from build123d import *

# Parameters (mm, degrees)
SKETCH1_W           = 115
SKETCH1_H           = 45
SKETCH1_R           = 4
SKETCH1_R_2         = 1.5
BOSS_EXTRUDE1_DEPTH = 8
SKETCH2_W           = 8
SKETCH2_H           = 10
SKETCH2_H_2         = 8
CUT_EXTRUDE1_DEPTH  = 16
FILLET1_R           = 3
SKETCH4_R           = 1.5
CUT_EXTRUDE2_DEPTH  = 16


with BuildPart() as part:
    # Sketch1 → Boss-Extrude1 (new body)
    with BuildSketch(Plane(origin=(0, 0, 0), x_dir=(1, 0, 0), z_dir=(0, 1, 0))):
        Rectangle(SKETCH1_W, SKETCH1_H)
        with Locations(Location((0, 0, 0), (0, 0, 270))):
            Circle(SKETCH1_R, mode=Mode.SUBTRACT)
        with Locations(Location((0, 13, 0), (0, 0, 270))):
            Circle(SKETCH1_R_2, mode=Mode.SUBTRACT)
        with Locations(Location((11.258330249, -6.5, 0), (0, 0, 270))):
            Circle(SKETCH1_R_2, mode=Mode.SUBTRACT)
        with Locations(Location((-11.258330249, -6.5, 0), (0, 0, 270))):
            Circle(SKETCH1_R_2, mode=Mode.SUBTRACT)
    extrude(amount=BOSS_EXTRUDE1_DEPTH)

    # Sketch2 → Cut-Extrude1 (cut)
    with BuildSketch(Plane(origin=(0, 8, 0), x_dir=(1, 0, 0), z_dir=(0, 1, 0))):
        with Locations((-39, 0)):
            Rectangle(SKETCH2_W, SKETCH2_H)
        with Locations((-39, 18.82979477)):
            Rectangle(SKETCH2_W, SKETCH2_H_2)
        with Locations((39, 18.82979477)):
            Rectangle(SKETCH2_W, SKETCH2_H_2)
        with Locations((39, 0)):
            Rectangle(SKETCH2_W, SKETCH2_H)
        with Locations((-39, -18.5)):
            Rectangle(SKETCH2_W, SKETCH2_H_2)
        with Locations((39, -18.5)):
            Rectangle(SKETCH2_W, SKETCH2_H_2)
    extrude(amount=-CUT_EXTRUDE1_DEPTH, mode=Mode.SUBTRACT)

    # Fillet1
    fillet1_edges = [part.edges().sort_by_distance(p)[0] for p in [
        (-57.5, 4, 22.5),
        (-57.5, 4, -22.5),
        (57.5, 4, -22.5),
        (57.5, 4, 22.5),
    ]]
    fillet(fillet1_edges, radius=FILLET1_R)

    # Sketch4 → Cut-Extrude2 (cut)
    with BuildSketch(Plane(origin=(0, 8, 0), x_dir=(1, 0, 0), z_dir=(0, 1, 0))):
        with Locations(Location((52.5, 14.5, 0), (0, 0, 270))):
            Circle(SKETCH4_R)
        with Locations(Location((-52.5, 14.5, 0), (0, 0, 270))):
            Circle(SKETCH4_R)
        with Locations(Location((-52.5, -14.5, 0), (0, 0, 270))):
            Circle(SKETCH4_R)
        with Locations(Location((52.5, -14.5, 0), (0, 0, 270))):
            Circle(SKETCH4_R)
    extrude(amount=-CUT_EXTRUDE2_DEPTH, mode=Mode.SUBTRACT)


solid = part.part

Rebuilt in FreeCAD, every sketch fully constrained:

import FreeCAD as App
import Part
import Sketcher
Q = App.Units.Quantity


def edges_at(feature, points):
    """Names of the edges that pass closest to the given points."""
    edges = feature.Shape.Edges
    near = lambda p: min(range(len(edges)), key=lambda i: edges[i].distToShape(Part.Vertex(*p))[0])
    return sorted({f"Edge{near(p) + 1}" for p in points})


def add_polygon(sketch, points):
    """Adds a closed chain of lines whose ends are joined by coincident constraints."""
    first, n = sketch.GeometryCount, len(points)
    for a, b in zip(points, points[1:] + points[:1]):
        sketch.addGeometry(Part.LineSegment(App.Vector(*a, 0), App.Vector(*b, 0)), False)
    for i in range(n):
        sketch.addConstraint(Sketcher.Constraint("Coincident", first + i, 2, first + (i + 1) % n, 1))

doc = App.newDocument("Part")
body = doc.addObject("PartDesign::Body", "Body")

# Sketch on XZ plane
sketch1 = body.newObject("Sketcher::SketchObject", "Sketch")
sketch1.AttachmentSupport = (doc.getObject("XZ_Plane"), [""])
sketch1.MapMode = "FlatFace"
add_polygon(sketch1, [(-57.5, -22.5), (-57.5, 22.5), (57.5, 22.5), (57.5, -22.5)])  # lines 0-3
sketch1.addGeometry(Part.Circle(App.Vector(-11.25833, 6.5, 0), App.Vector(0, 0, 1), 1.5), False)  # 4
sketch1.addGeometry(Part.Circle(App.Vector(11.25833, 6.5, 0), App.Vector(0, 0, 1), 1.5), False)  # 5
sketch1.addGeometry(Part.Circle(App.Vector(0, 0, 0), App.Vector(0, 0, 1), 4), False)  # 6
sketch1.addGeometry(Part.Circle(App.Vector(0, -13, 0), App.Vector(0, 0, 1), 1.5), False)  # 7
sketch1.addConstraint(Sketcher.Constraint("Vertical", 0))
sketch1.addConstraint(Sketcher.Constraint("Horizontal", 1))
sketch1.addConstraint(Sketcher.Constraint("Vertical", 2))
sketch1.addConstraint(Sketcher.Constraint("Horizontal", 3))
sketch1.addConstraint(Sketcher.Constraint("Coincident", 6, 3, -1, 1))
sketch1.addConstraint(Sketcher.Constraint("Equal", 4, 5))
sketch1.addConstraint(Sketcher.Constraint("Equal", 5, 7))
sketch1.addConstraint(Sketcher.Constraint("Symmetric", 0, 2, 2, 2, -1, 1))
sketch1.addConstraint(Sketcher.Constraint("Symmetric", 4, 3, 5, 3, -2))
sketch1.addConstraint(Sketcher.Constraint("PointOnObject", 7, 3, -2))
sketch1.addConstraint(Sketcher.Constraint("Diameter", 4, Q("3 mm")))
sketch1.addConstraint(Sketcher.Constraint("Diameter", 6, Q("8 mm")))
sketch1.addConstraint(Sketcher.Constraint("DistanceX", 1, 1, 1, 2, Q("115 mm")))
sketch1.addConstraint(Sketcher.Constraint("DistanceY", 0, 1, 0, 2, Q("45 mm")))
sketch1.addConstraint(Sketcher.Constraint("DistanceY", 7, 3, -1, 1, Q("13 mm")))
sketch1.addConstraint(Sketcher.Constraint("DistanceY", 4, 3, 0, 2, Q("16 mm")))
sketch1.addConstraint(Sketcher.Constraint("DistanceX", 4, 3, -1, 1, Q("11.25833 mm")))
pad1 = body.newObject("PartDesign::Pad", "Pad")
pad1.Profile = sketch1
pad1.Length = 8
pad1.Reversed = True

# Sketch on XZ plane
sketch2 = body.newObject("Sketcher::SketchObject", "Sketch001")
sketch2.AttachmentSupport = (doc.getObject("XZ_Plane"), [""])
sketch2.MapMode = "FlatFace"
sketch2.AttachmentOffset = App.Placement(App.Vector(0, 0, -8), App.Rotation())
add_polygon(sketch2, [(-43, -5), (-43, 5), (-35, 5), (-35, -5)])  # lines 0-3
add_polygon(sketch2, [(-43, -22.829795), (-43, -14.829795), (-35, -14.829795), (-35, -22.829795)])  # lines 4-7
add_polygon(sketch2, [(35, -22.829795), (35, -14.829795), (43, -14.829795), (43, -22.829795)])  # lines 8-11
add_polygon(sketch2, [(35, -5), (35, 5), (43, 5), (43, -5)])  # lines 12-15
add_polygon(sketch2, [(-43, 14.5), (-43, 22.5), (-35, 22.5), (-35, 14.5)])  # lines 16-19
add_polygon(sketch2, [(35, 14.5), (35, 22.5), (43, 22.5), (43, 14.5)])  # lines 20-23
sketch2.addConstraint(Sketcher.Constraint("Vertical", 0))
sketch2.addConstraint(Sketcher.Constraint("Horizontal", 1))
sketch2.addConstraint(Sketcher.Constraint("Vertical", 2))
sketch2.addConstraint(Sketcher.Constraint("Horizontal", 3))
sketch2.addConstraint(Sketcher.Constraint("Vertical", 4))
sketch2.addConstraint(Sketcher.Constraint("Horizontal", 5))
sketch2.addConstraint(Sketcher.Constraint("Vertical", 6))
sketch2.addConstraint(Sketcher.Constraint("Horizontal", 7))
sketch2.addConstraint(Sketcher.Constraint("Vertical", 8))
sketch2.addConstraint(Sketcher.Constraint("Horizontal", 9))
sketch2.addConstraint(Sketcher.Constraint("Vertical", 10))
sketch2.addConstraint(Sketcher.Constraint("Horizontal", 11))
sketch2.addConstraint(Sketcher.Constraint("Vertical", 12))
sketch2.addConstraint(Sketcher.Constraint("Horizontal", 13))
sketch2.addConstraint(Sketcher.Constraint("Vertical", 14))
sketch2.addConstraint(Sketcher.Constraint("Horizontal", 15))
sketch2.addConstraint(Sketcher.Constraint("Vertical", 16))
sketch2.addConstraint(Sketcher.Constraint("Horizontal", 17))
sketch2.addConstraint(Sketcher.Constraint("Vertical", 18))
sketch2.addConstraint(Sketcher.Constraint("Horizontal", 19))
sketch2.addConstraint(Sketcher.Constraint("Vertical", 20))
sketch2.addConstraint(Sketcher.Constraint("Horizontal", 21))
sketch2.addConstraint(Sketcher.Constraint("Vertical", 22))
sketch2.addConstraint(Sketcher.Constraint("Horizontal", 23))
sketch2.addConstraint(Sketcher.Constraint("Symmetric", 2, 2, 12, 2, -1, 1))
sketch2.addConstraint(Sketcher.Constraint("Symmetric", 0, 2, 14, 2, -1, 1))
sketch2.addConstraint(Sketcher.Constraint("Symmetric", 5, 2, 8, 2, -2))
sketch2.addConstraint(Sketcher.Constraint("Symmetric", 7, 2, 10, 2, -2))
sketch2.addConstraint(Sketcher.Constraint("Symmetric", 17, 2, 20, 2, -2))
sketch2.addConstraint(Sketcher.Constraint("Symmetric", 19, 2, 22, 2, -2))
sketch2.addConstraint(Sketcher.Constraint("Horizontal", 1, 2, 12, 2))
sketch2.addConstraint(Sketcher.Constraint("Vertical", 3, 2, 4, 2))
sketch2.addConstraint(Sketcher.Constraint("Vertical", 2, 2, 5, 2))
sketch2.addConstraint(Sketcher.Constraint("Vertical", 7, 2, 16, 2))
sketch2.addConstraint(Sketcher.Constraint("Vertical", 6, 2, 17, 2))
sketch2.addConstraint(Sketcher.Constraint("Equal", 23, 4))
sketch2.addConstraint(Sketcher.Constraint("Equal", 10, 16))
sketch2.addConstraint(Sketcher.Constraint("DistanceX", 1, 1, 1, 2, Q("8 mm")))
sketch2.addConstraint(Sketcher.Constraint("DistanceY", 0, 1, 0, 2, Q("10 mm")))
sketch2.addConstraint(Sketcher.Constraint("DistanceX", 0, 2, -1, 1, Q("43 mm")))
sketch2.addConstraint(Sketcher.Constraint("DistanceY", -1, 1, 16, 2, Q("22.5 mm")))
sketch2.addConstraint(Sketcher.Constraint("DistanceY", 4, 2, -1, 1, Q("14.829795 mm")))
pocket1 = body.newObject("PartDesign::Pocket", "Pocket")
pocket1.Profile = sketch2
pocket1.Length = 16
pocket1.Reversed = True
doc.recompute()

fillet = body.newObject("PartDesign::Fillet", "Fillet")
fillet.Base = (pocket1, edges_at(pocket1, [
    (-57.5, 4, 22.5),
    (-57.5, 4, -22.5),
    (57.5, 4, -22.5),
    (57.5, 4, 22.5),
]))
fillet.Radius = 3

# Sketch on XZ plane
sketch3 = body.newObject("Sketcher::SketchObject", "Sketch002")
sketch3.AttachmentSupport = (doc.getObject("XZ_Plane"), [""])
sketch3.MapMode = "FlatFace"
sketch3.AttachmentOffset = App.Placement(App.Vector(0, 0, -8), App.Rotation())
sketch3.addGeometry(Part.Circle(App.Vector(52.5, -14.5, 0), App.Vector(0, 0, 1), 1.5), False)
sketch3.addGeometry(Part.Circle(App.Vector(-52.5, -14.5, 0), App.Vector(0, 0, 1), 1.5), False)
sketch3.addGeometry(Part.Circle(App.Vector(-52.5, 14.5, 0), App.Vector(0, 0, 1), 1.5), False)
sketch3.addGeometry(Part.Circle(App.Vector(52.5, 14.5, 0), App.Vector(0, 0, 1), 1.5), False)
sketch3.addConstraint(Sketcher.Constraint("Equal", 0, 1))
sketch3.addConstraint(Sketcher.Constraint("Equal", 1, 2))
sketch3.addConstraint(Sketcher.Constraint("Equal", 2, 3))
sketch3.addConstraint(Sketcher.Constraint("Symmetric", 0, 3, 2, 3, -1, 1))
sketch3.addConstraint(Sketcher.Constraint("Symmetric", 1, 3, 3, 3, -1, 1))
sketch3.addConstraint(Sketcher.Constraint("Symmetric", 0, 3, 1, 3, -2))
sketch3.addConstraint(Sketcher.Constraint("Diameter", 0, Q("3 mm")))
sketch3.addConstraint(Sketcher.Constraint("DistanceX", 1, 3, 0, 3, Q("105 mm")))
sketch3.addConstraint(Sketcher.Constraint("DistanceY", 1, 3, 2, 3, Q("29 mm")))
pocket2 = body.newObject("PartDesign::Pocket", "Pocket001")
pocket2.Profile = sketch3
pocket2.Length = 16
pocket2.Reversed = True

doc.recompute()
